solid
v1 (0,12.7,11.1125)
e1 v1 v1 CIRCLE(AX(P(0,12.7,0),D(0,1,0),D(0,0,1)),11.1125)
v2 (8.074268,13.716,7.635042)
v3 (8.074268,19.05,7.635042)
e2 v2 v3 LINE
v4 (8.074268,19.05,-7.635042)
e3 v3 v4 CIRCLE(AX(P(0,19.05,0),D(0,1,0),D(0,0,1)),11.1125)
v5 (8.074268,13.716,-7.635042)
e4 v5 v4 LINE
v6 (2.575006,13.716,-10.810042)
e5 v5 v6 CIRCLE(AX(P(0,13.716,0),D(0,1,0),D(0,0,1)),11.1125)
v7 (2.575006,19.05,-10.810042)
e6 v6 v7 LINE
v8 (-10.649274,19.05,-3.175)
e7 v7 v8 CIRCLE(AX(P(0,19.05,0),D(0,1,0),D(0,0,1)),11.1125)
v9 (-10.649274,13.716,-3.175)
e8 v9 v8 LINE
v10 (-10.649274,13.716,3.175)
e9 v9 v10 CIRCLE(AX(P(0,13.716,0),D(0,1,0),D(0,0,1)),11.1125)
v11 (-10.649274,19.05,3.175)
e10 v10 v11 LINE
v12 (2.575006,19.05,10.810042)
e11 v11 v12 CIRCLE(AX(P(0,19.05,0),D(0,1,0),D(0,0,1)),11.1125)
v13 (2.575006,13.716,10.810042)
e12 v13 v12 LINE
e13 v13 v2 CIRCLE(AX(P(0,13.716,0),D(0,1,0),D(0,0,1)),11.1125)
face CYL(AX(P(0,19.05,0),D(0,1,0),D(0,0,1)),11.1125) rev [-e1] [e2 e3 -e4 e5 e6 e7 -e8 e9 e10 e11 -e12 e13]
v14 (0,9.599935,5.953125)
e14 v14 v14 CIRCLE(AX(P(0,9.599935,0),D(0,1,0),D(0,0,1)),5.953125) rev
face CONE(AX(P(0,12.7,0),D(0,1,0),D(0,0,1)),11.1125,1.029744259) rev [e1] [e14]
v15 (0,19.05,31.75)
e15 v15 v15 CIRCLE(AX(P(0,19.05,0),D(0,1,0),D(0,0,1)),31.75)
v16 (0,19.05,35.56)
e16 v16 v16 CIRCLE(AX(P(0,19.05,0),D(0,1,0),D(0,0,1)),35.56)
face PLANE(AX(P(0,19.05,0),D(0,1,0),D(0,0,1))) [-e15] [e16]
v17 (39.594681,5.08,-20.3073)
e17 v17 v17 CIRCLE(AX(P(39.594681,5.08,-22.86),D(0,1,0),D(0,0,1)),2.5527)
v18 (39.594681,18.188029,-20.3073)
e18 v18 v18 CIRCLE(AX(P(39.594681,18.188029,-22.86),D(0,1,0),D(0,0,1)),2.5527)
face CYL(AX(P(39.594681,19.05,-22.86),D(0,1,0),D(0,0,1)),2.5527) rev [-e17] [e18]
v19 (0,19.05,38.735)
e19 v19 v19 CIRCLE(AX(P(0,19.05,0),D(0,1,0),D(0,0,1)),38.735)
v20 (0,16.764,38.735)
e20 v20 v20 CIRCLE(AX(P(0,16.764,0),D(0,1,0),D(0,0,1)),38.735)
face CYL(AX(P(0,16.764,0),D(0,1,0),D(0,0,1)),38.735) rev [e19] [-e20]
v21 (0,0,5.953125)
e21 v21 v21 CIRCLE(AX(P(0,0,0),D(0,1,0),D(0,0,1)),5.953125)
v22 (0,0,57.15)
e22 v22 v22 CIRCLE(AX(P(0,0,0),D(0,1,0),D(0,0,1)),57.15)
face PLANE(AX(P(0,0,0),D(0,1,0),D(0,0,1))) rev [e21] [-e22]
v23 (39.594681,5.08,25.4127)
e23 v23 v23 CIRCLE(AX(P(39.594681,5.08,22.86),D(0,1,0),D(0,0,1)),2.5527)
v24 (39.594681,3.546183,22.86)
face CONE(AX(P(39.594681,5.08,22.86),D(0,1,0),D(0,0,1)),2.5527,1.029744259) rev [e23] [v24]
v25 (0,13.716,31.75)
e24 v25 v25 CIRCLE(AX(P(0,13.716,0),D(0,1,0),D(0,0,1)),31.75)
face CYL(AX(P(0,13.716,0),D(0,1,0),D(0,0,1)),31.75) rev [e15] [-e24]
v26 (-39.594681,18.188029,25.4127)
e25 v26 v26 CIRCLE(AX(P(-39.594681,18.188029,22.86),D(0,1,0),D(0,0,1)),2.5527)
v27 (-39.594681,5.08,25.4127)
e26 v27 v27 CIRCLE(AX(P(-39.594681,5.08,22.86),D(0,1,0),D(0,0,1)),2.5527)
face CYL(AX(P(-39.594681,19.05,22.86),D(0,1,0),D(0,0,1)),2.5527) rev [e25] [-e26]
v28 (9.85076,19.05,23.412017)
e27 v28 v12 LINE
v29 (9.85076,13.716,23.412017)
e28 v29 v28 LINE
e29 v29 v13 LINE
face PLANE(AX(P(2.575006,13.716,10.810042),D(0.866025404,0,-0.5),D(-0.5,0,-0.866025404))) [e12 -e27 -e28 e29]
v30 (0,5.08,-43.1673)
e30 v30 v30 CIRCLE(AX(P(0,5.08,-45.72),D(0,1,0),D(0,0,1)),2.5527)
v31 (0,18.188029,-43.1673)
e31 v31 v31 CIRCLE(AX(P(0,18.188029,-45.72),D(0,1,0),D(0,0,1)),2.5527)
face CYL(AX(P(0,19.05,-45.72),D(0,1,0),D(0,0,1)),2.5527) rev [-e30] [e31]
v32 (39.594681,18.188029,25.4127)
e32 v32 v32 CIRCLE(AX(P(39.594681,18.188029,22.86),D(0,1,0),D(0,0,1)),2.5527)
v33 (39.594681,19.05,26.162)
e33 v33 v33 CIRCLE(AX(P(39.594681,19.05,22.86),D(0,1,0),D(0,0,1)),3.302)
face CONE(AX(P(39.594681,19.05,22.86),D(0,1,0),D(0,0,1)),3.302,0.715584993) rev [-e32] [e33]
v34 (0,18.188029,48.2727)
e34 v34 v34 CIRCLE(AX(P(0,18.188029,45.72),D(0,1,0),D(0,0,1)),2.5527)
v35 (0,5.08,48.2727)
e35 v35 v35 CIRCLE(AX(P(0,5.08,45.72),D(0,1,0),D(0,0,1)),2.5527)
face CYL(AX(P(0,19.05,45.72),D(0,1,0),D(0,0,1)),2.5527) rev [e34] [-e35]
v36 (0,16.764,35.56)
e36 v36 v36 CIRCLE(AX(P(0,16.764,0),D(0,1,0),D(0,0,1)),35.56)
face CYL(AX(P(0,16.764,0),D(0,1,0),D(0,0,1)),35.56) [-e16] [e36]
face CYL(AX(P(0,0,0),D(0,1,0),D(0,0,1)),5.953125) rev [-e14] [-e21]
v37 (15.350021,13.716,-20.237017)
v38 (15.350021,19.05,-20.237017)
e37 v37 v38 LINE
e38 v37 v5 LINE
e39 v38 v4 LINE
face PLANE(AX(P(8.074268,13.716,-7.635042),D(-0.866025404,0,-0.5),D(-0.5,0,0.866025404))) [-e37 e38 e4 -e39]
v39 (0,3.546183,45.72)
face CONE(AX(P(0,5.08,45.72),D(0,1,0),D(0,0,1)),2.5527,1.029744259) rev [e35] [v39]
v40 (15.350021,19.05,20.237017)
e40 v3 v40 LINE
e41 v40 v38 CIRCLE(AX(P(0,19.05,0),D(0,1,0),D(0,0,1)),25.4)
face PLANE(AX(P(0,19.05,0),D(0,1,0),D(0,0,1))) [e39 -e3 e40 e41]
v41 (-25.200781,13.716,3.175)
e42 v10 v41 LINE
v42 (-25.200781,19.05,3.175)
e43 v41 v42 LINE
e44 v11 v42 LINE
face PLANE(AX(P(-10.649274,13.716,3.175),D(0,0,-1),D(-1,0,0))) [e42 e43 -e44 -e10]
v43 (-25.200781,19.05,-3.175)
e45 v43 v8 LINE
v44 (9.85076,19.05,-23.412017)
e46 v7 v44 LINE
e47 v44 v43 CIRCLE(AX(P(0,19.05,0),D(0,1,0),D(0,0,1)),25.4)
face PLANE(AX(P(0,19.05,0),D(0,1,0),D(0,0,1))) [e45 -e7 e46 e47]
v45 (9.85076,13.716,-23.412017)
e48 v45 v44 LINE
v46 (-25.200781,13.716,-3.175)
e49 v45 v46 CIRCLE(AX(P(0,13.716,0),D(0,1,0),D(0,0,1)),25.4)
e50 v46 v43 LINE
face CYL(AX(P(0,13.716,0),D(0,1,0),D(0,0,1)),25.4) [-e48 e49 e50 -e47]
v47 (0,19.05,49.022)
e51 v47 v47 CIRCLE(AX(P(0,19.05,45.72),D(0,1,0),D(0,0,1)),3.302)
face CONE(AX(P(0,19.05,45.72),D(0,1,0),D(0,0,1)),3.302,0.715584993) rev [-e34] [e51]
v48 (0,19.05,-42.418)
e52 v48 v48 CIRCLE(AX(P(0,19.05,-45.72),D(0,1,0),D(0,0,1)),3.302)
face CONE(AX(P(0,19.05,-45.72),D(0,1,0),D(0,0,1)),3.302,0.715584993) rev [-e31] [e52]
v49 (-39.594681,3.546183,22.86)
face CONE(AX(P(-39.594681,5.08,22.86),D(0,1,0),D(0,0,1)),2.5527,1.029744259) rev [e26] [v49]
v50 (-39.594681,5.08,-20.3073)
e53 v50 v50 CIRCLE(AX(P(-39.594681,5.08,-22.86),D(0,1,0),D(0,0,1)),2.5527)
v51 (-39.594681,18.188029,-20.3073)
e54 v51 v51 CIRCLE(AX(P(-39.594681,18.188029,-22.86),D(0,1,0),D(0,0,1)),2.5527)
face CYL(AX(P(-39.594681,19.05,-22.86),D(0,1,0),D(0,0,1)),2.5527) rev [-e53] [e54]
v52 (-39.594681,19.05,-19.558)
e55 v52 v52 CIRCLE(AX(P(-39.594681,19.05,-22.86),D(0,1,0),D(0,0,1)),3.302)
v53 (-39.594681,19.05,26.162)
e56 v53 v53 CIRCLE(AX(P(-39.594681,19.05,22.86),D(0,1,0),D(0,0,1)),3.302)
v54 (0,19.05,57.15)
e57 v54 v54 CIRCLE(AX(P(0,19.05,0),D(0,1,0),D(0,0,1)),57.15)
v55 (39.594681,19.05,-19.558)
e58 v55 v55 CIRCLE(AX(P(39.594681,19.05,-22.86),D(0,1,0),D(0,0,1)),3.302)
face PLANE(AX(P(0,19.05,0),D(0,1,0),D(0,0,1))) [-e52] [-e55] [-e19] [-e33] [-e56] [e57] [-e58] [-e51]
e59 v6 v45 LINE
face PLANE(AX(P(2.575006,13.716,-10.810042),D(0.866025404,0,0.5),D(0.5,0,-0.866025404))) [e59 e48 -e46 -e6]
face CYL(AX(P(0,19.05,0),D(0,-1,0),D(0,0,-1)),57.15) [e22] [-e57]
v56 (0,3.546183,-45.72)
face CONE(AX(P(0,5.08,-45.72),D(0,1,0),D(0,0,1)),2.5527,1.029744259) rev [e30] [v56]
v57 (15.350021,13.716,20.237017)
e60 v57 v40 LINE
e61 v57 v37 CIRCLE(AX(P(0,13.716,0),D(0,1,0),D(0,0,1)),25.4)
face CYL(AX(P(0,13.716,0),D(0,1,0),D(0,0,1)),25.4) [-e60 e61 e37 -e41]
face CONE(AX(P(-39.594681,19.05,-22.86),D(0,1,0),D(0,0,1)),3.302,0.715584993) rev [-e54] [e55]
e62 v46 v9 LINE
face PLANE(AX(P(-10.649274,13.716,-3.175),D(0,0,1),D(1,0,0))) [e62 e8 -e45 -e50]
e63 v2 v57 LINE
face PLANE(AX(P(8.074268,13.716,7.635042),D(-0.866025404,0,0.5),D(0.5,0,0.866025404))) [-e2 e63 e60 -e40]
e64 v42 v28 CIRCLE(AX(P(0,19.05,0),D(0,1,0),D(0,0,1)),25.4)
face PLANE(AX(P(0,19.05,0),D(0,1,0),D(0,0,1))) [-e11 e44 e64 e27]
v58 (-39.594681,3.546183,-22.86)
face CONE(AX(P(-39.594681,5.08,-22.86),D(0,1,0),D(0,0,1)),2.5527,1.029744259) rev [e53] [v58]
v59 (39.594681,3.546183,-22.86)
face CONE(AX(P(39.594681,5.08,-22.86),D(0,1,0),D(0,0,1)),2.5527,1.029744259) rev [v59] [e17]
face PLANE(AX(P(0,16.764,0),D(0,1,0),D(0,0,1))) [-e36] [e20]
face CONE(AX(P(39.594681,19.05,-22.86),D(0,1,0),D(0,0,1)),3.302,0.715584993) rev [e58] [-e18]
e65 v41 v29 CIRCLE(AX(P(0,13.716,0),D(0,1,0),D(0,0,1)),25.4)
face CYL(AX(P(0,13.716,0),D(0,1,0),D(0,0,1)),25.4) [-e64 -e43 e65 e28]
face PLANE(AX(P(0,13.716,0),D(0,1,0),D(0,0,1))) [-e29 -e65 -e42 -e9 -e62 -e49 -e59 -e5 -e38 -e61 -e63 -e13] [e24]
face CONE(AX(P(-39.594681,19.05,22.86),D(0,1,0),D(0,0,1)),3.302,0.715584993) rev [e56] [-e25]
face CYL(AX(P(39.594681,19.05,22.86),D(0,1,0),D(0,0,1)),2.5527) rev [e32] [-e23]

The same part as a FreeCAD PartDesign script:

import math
import FreeCAD as App
import Part
import Sketcher
Q = App.Units.Quantity


def add_polygon(sketch, points):
    """Adds a closed chain of lines whose ends are joined by coincident constraints."""
    first, n = sketch.GeometryCount, len(points)
    for a, b in zip(points, points[1:] + points[:1]):
        sketch.addGeometry(Part.LineSegment(App.Vector(*a, 0), App.Vector(*b, 0)), False)
    for i in range(n):
        sketch.addConstraint(Sketcher.Constraint("Coincident", first + i, 2, first + (i + 1) % n, 1))

doc = App.newDocument("Part")
body = doc.addObject("PartDesign::Body", "Body")

# Sketch on XZ plane
sketch1 = body.newObject("Sketcher::SketchObject", "Sketch")
sketch1.AttachmentSupport = (doc.getObject("XZ_Plane"), [""])
sketch1.MapMode = "FlatFace"
sketch1.addGeometry(Part.Circle(App.Vector(0, 0, 0), App.Vector(0, 0, 1), 57.15), False)
sketch1.addConstraint(Sketcher.Constraint("Coincident", 0, 3, -1, 1))
sketch1.addConstraint(Sketcher.Constraint("Diameter", 0, Q("4.5 in")))
pad1 = body.newObject("PartDesign::Pad", "Pad")
pad1.Profile = sketch1
pad1.Length = Q("0.75 in")
pad1.Reversed = True

# Sketch on XZ plane
sketch2 = body.newObject("Sketcher::SketchObject", "Sketch001")
sketch2.AttachmentSupport = (doc.getObject("XZ_Plane"), [""])
sketch2.MapMode = "FlatFace"
sketch2.AttachmentOffset = App.Placement(App.Vector(0, 0, -0.75 * 25.4), App.Rotation())
sketch2.addGeometry(Part.Circle(App.Vector(0, 0, 0), App.Vector(0, 0, 1), 11.1125), False)
sketch2.addConstraint(Sketcher.Constraint("Coincident", 0, 3, -1, 1))
sketch2.addConstraint(Sketcher.Constraint("Diameter", 0, Q("0.875 in")))
doc.recompute()
hole = body.newObject("PartDesign::Hole", "Hole")
hole.Profile = sketch2
hole.ThreadType = "None"
hole.Diameter = Q("0.875 in")
hole.DepthType = "Dimension"
hole.Depth = Q("0.25 in")
hole.DrillPoint = "Angled"
hole.DrillPointAngle = 118
hole.Reversed = True

# Sketch on XZ plane
sketch3 = body.newObject("Sketcher::SketchObject", "Sketch002")
sketch3.AttachmentSupport = (doc.getObject("XZ_Plane"), [""])
sketch3.MapMode = "FlatFace"
sketch3.AttachmentOffset = App.Placement(App.Vector(0, 0, -0.75 * 25.4), App.Rotation())
sketch3.addGeometry(Part.Circle(App.Vector(0, 0, 0), App.Vector(0, 0, 1), 5.953125), False)
sketch3.addConstraint(Sketcher.Constraint("Coincident", 0, 3, -1, 1))
sketch3.addConstraint(Sketcher.Constraint("Diameter", 0, Q("0.46875 in")))
pocket1 = body.newObject("PartDesign::Pocket", "Pocket")
pocket1.Profile = sketch3
pocket1.Type = "ThroughAll"
pocket1.Midplane = True

# Sketch on XZ plane
sketch4 = body.newObject("Sketcher::SketchObject", "Sketch003")
sketch4.AttachmentSupport = (doc.getObject("XZ_Plane"), [""])
sketch4.MapMode = "FlatFace"
sketch4.AttachmentOffset = App.Placement(App.Vector(0, 0, -0.75 * 25.4), App.Rotation())
sketch4.addGeometry(Part.Circle(App.Vector(0, 0, 0), App.Vector(0, 0, 1), 31.75), False)
sketch4.addGeometry(Part.ArcOfCircle(Part.Circle(App.Vector(0, 0, 0), App.Vector(0, 0, 1), 11.1125), math.radians(163.39845), math.radians(196.60155)), False)
sketch4.addGeometry(Part.LineSegment(App.Vector(-10.649274, -3.175, 0), App.Vector(-25.200781, -3.175, 0)), False)
sketch4.addGeometry(Part.ArcOfCircle(Part.Circle(App.Vector(0, 0, 0), App.Vector(0, 0, 1), 25.4), math.radians(-172.819244), math.radians(-67.180756)), False)
sketch4.addGeometry(Part.LineSegment(App.Vector(9.85076, -23.412017, 0), App.Vector(2.575006, -10.810042, 0)), False)
sketch4.addGeometry(Part.ArcOfCircle(Part.Circle(App.Vector(0, 0, 0), App.Vector(0, 0, 1), 11.1125), math.radians(-76.60155), math.radians(-43.39845)), False)
sketch4.addGeometry(Part.LineSegment(App.Vector(8.074268, -7.635042, 0), App.Vector(15.350021, -20.237017, 0)), False)
sketch4.addGeometry(Part.ArcOfCircle(Part.Circle(App.Vector(0, 0, 0), App.Vector(0, 0, 1), 25.4), math.radians(-52.819244), math.radians(52.819244)), False)
sketch4.addGeometry(Part.LineSegment(App.Vector(15.350021, 20.237017, 0), App.Vector(8.074268, 7.635042, 0)), False)
sketch4.addGeometry(Part.ArcOfCircle(Part.Circle(App.Vector(0, 0, 0), App.Vector(0, 0, 1), 11.1125), math.radians(43.39845), math.radians(76.60155)), False)
sketch4.addGeometry(Part.LineSegment(App.Vector(2.575006, 10.810042, 0), App.Vector(9.85076, 23.412017, 0)), False)
sketch4.addGeometry(Part.ArcOfCircle(Part.Circle(App.Vector(0, 0, 0), App.Vector(0, 0, 1), 25.4), math.radians(67.180756), math.radians(172.819244)), False)
sketch4.addGeometry(Part.LineSegment(App.Vector(-25.200781, 3.175, 0), App.Vector(-10.649274, 3.175, 0)), False)
sketch4.addConstraint(Sketcher.Constraint("Coincident", 1, 2, 2, 1))
sketch4.addConstraint(Sketcher.Constraint("Coincident", 2, 2, 3, 1))
sketch4.addConstraint(Sketcher.Constraint("Coincident", 3, 2, 4, 1))
sketch4.addConstraint(Sketcher.Constraint("Coincident", 4, 2, 5, 1))
sketch4.addConstraint(Sketcher.Constraint("Coincident", 5, 2, 6, 1))
sketch4.addConstraint(Sketcher.Constraint("Coincident", 6, 2, 7, 1))
sketch4.addConstraint(Sketcher.Constraint("Coincident", 7, 2, 8, 1))
sketch4.addConstraint(Sketcher.Constraint("Coincident", 8, 2, 9, 1))
sketch4.addConstraint(Sketcher.Constraint("Coincident", 9, 2, 10, 1))
sketch4.addConstraint(Sketcher.Constraint("Coincident", 10, 2, 11, 1))
sketch4.addConstraint(Sketcher.Constraint("Coincident", 11, 2, 12, 1))
sketch4.addConstraint(Sketcher.Constraint("Coincident", 12, 2, 1, 1))
sketch4.addConstraint(Sketcher.Constraint("Horizontal", 2))
sketch4.addConstraint(Sketcher.Constraint("Horizontal", 12))
sketch4.addConstraint(Sketcher.Constraint("Coincident", 0, 3, -1, 1))
sketch4.addConstraint(Sketcher.Constraint("Coincident", 1, 3, -1, 1))
sketch4.addConstraint(Sketcher.Constraint("Coincident", 3, 3, -1, 1))
sketch4.addConstraint(Sketcher.Constraint("Coincident", 5, 3, -1, 1))
sketch4.addConstraint(Sketcher.Constraint("Coincident", 7, 3, -1, 1))
sketch4.addConstraint(Sketcher.Constraint("Coincident", 9, 3, -1, 1))
sketch4.addConstraint(Sketcher.Constraint("Coincident", 11, 3, -1, 1))
sketch4.addConstraint(Sketcher.Constraint("Equal", 1, 5))
sketch4.addConstraint(Sketcher.Constraint("Equal", 3, 7))
sketch4.addConstraint(Sketcher.Constraint("Equal", 5, 9))
sketch4.addConstraint(Sketcher.Constraint("Equal", 7, 11))
sketch4.addConstraint(Sketcher.Constraint("Parallel", 4, 6))
sketch4.addConstraint(Sketcher.Constraint("Parallel", 8, 10))
sketch4.addConstraint(Sketcher.Constraint("Vertical", 6, 2, 7, 2))
sketch4.addConstraint(Sketcher.Constraint("Vertical", 5, 2, 8, 2))
sketch4.addConstraint(Sketcher.Constraint("Vertical", 4, 2, 9, 2))
sketch4.addConstraint(Sketcher.Constraint("Vertical", 2, 2, 11, 2))
sketch4.addConstraint(Sketcher.Constraint("Equal", 4, 6))
sketch4.addConstraint(Sketcher.Constraint("Radius", 3, Q("1 in")))
sketch4.addConstraint(Sketcher.Constraint("Diameter", 0, Q("2.5 in")))
sketch4.addConstraint(Sketcher.Constraint("Angle", 4, Q("120 deg")))
sketch4.addConstraint(Sketcher.Constraint("Radius", 1, Q("0.4375 in")))
sketch4.addConstraint(Sketcher.Constraint("DistanceY", 2, 2, 11, 2, Q("0.25 in")))
sketch4.addConstraint(Sketcher.Constraint("DistanceY", 4, 2, 5, 2, Q("0.125 in")))
pocket2 = body.newObject("PartDesign::Pocket", "Pocket001")
pocket2.Profile = sketch4
pocket2.Length = Q("0.21 in")
pocket2.Reversed = True

# Sketch on XZ plane
sketch5 = body.newObject("Sketcher::SketchObject", "Sketch004")
sketch5.AttachmentSupport = (doc.getObject("XZ_Plane"), [""])
sketch5.MapMode = "FlatFace"
sketch5.AttachmentOffset = App.Placement(App.Vector(0, 0, -0.75 * 25.4), App.Rotation())
sketch5.addGeometry(Part.Circle(App.Vector(0, 0, 0), App.Vector(0, 0, 1), 38.735), False)
sketch5.addGeometry(Part.Circle(App.Vector(0, 0, 0), App.Vector(0, 0, 1), 35.56), False)
sketch5.addConstraint(Sketcher.Constraint("Coincident", 0, 3, -1, 1))
sketch5.addConstraint(Sketcher.Constraint("Coincident", 1, 3, -1, 1))
sketch5.addConstraint(Sketcher.Constraint("Diameter", 1, Q("2.8 in")))
sketch5.addConstraint(Sketcher.Constraint("Diameter", 0, Q("3.05 in")))
pocket3 = body.newObject("PartDesign::Pocket", "Pocket002")
pocket3.Profile = sketch5
pocket3.Length = Q("0.09 in")
pocket3.Reversed = True

# Sketch on YZ plane
sketch6 = body.newObject("Sketcher::SketchObject", "Sketch005")
sketch6.AttachmentSupport = (doc.getObject("YZ_Plane"), [""])
sketch6.MapMode = "FlatFace"
add_polygon(sketch6, [(3.546183, -45.72), (19.05, -45.72), (19.05, -42.418), (18.188029, -43.1673), (5.08, -43.1673)])  # lines 0-4
sketch6.addGeometry(Part.LineSegment(App.Vector(19.05, -45.72, 0), App.Vector(3.546183, -45.72, 0)), True)  # axis
sketch6.addConstraint(Sketcher.Constraint("Horizontal", 0))
sketch6.addConstraint(Sketcher.Constraint("Vertical", 1))
sketch6.addConstraint(Sketcher.Constraint("Horizontal", 3))
sketch6.addConstraint(Sketcher.Constraint("Horizontal", 5))
sketch6.addConstraint(Sketcher.Constraint("Coincident", 5, 1, 0, 2))
sketch6.addConstraint(Sketcher.Constraint("Equal", 0, 5))
sketch6.addConstraint(Sketcher.Constraint("Angle", 2, Q("-139 deg")))
sketch6.addConstraint(Sketcher.Constraint("Angle", 4, Q("-121 deg")))
sketch6.addConstraint(Sketcher.Constraint("DistanceY", 1, 1, 1, 2, Q("0.13 in")))
sketch6.addConstraint(Sketcher.Constraint("DistanceY", 0, 2, -1, 1, Q("1.8 in")))
sketch6.addConstraint(Sketcher.Constraint("DistanceX", -1, 1, 3, 2, Q("0.2 in")))
sketch6.addConstraint(Sketcher.Constraint("DistanceX", -1, 1, 0, 2, Q("0.75 in")))
sketch6.addConstraint(Sketcher.Constraint("DistanceY", 2, 2, -1, 1, Q("1.6995 in")))
groove = body.newObject("PartDesign::Groove", "Groove")
groove.Profile = sketch6
groove.ReferenceAxis = (sketch6, ["Axis0"])
groove.Angle = 360
doc.recompute()

polarpattern = body.newObject("PartDesign::PolarPattern", "PolarPattern")
polarpattern.Originals = [groove]
polarpattern.Axis = (doc.getObject("Y_Axis"), [""])
polarpattern.Angle = 360
polarpattern.Occurrences = 6
body.Tip = polarpattern

doc.recompute()
